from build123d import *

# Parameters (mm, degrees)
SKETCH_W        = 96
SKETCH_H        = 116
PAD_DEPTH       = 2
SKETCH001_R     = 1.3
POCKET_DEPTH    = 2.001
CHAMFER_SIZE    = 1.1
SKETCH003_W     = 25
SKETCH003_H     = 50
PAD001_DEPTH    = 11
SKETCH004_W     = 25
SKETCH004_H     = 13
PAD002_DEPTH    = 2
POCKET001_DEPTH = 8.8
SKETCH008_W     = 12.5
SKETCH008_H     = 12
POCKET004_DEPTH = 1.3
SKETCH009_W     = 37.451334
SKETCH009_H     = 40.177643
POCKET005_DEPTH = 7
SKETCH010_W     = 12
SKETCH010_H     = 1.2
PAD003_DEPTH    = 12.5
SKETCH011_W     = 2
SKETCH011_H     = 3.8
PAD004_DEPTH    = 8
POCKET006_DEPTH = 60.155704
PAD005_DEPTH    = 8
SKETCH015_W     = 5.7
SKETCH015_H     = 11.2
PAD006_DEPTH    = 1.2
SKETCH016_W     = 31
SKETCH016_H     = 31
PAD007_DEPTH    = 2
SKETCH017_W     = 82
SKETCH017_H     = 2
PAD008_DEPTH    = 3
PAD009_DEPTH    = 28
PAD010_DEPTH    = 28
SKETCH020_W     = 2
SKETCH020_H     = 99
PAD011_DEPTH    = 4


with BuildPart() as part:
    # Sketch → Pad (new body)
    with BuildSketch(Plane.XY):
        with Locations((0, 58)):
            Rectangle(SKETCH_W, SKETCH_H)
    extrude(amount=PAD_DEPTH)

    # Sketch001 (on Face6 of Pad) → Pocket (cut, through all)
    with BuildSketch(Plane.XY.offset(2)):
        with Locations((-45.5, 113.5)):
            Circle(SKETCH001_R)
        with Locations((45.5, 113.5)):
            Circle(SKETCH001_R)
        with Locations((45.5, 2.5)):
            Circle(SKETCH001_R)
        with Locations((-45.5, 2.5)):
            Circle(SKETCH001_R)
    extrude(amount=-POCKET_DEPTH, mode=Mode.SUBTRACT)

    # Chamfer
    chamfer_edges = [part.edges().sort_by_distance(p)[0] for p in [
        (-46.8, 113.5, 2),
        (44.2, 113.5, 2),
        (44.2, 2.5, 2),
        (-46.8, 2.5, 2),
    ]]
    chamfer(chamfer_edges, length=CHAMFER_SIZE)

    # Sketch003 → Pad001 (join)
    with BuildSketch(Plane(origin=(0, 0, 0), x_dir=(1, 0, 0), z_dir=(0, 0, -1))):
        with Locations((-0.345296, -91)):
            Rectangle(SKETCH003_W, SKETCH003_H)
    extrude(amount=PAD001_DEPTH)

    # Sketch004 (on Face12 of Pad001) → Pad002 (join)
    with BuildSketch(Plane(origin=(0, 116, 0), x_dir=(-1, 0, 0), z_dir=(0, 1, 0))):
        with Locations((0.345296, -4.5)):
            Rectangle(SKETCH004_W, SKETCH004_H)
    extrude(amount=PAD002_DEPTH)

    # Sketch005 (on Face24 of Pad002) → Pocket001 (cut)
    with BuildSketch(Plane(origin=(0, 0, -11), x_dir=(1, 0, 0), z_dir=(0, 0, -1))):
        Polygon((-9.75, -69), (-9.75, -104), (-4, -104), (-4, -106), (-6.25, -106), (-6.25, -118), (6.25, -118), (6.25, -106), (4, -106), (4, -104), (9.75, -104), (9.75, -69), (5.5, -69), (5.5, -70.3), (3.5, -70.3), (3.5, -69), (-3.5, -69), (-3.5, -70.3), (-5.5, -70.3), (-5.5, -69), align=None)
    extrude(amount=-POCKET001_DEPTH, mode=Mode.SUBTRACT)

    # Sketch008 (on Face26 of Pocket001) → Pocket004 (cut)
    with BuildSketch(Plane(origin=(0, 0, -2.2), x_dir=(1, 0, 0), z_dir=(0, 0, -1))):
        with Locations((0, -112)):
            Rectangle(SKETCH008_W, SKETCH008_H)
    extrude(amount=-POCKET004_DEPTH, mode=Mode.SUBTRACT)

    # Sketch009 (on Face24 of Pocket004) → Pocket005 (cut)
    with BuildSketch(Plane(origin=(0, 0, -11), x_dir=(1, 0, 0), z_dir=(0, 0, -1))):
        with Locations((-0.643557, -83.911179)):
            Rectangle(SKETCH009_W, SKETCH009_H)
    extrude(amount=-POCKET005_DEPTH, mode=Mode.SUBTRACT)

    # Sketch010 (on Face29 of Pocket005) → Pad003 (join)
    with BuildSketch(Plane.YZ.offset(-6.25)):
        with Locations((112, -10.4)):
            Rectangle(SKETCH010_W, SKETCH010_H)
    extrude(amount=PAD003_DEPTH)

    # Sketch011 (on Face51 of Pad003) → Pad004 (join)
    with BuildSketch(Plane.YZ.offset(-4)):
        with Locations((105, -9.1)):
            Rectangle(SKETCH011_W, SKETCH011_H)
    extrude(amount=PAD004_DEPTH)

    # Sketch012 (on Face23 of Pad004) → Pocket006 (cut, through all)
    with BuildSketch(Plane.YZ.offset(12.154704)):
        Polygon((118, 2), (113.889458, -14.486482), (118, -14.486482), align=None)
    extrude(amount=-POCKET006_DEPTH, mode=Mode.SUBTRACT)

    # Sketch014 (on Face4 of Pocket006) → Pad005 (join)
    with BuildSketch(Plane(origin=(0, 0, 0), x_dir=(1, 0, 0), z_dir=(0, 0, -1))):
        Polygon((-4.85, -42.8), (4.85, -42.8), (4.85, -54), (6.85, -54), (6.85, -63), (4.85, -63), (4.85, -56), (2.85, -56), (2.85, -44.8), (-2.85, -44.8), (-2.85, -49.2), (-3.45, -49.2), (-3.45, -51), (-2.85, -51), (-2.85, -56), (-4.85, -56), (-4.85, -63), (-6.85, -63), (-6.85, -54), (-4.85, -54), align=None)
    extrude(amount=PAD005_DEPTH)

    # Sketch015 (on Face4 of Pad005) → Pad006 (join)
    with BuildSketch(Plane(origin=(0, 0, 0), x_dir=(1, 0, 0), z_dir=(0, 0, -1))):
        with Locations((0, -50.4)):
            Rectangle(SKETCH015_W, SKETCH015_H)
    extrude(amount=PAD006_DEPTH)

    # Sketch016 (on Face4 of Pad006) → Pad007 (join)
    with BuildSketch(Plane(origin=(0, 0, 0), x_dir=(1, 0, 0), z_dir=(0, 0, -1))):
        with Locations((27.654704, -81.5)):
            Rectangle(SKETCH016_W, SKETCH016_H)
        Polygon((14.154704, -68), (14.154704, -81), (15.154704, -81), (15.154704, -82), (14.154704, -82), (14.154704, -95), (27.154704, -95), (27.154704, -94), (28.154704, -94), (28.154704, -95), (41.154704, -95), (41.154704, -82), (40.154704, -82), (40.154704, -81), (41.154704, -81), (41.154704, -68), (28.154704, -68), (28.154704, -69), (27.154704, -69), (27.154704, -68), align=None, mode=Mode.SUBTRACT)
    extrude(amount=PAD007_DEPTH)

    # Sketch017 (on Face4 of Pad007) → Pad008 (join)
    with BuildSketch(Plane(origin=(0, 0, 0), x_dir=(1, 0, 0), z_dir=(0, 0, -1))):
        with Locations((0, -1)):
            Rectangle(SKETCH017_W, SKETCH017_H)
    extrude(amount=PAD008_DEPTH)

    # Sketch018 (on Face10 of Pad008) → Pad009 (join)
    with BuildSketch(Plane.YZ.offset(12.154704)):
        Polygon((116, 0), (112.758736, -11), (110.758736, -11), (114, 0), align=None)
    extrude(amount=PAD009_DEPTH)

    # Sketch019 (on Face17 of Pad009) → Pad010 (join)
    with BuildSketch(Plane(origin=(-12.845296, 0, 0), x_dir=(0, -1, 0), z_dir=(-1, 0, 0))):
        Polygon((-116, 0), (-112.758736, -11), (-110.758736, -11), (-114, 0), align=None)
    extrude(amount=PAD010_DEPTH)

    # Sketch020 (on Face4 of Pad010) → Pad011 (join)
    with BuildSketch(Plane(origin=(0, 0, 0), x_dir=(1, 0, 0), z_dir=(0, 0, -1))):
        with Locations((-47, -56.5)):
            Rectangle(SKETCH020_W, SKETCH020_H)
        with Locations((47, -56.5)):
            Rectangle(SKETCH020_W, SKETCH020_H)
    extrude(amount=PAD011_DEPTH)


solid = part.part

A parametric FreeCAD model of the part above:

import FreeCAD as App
import Part
import Sketcher
Q = App.Units.Quantity


def edges_at(feature, points):
    """Names of the edges that pass closest to the given points."""
    edges = feature.Shape.Edges
    near = lambda p: min(range(len(edges)), key=lambda i: edges[i].distToShape(Part.Vertex(*p))[0])
    return sorted({f"Edge{near(p) + 1}" for p in points})

doc = App.newDocument("Part")
body = doc.addObject("PartDesign::Body", "Body")

# Sketch on XY plane
sketch1 = body.newObject("Sketcher::SketchObject", "Sketch")
sketch1.AttachmentSupport = (doc.getObject("XY_Plane"), [""])
sketch1.MapMode = "FlatFace"
sketch1.addGeometry(Part.LineSegment(App.Vector(-48, 116, 0), App.Vector(-48, 0, 0)), False)
sketch1.addGeometry(Part.LineSegment(App.Vector(-48, 0, 0), App.Vector(48, 0, 0)), False)
sketch1.addGeometry(Part.LineSegment(App.Vector(48, 0, 0), App.Vector(48, 116, 0)), False)
sketch1.addGeometry(Part.LineSegment(App.Vector(48, 116, 0), App.Vector(-48, 116, 0)), False)
sketch1.addConstraint(Sketcher.Constraint("Coincident", 0, 2, 1, 1))
sketch1.addConstraint(Sketcher.Constraint("Coincident", 1, 2, 2, 1))
sketch1.addConstraint(Sketcher.Constraint("Coincident", 2, 2, 3, 1))
sketch1.addConstraint(Sketcher.Constraint("Coincident", 3, 2, 0, 1))
sketch1.addConstraint(Sketcher.Constraint("Vertical", 0))
sketch1.addConstraint(Sketcher.Constraint("Horizontal", 1))
sketch1.addConstraint(Sketcher.Constraint("Vertical", 2))
sketch1.addConstraint(Sketcher.Constraint("Horizontal", 3))
sketch1.addConstraint(Sketcher.Constraint("Symmetric", 0, 2, 1, 2, -1, 1))
sketch1.addConstraint(Sketcher.Constraint("DistanceX", 1, 1, 1, 2, Q("96 mm")))
sketch1.addConstraint(Sketcher.Constraint("DistanceY", 0, 2, 0, 1, Q("116 mm")))
pad1 = body.newObject("PartDesign::Pad", "Pad")
pad1.Profile = sketch1
pad1.Length = 2

# Sketch on XY plane
sketch2 = body.newObject("Sketcher::SketchObject", "Sketch001")
sketch2.AttachmentSupport = (doc.getObject("XY_Plane"), [""])
sketch2.MapMode = "FlatFace"
sketch2.AttachmentOffset = App.Placement(App.Vector(0, 0, 2), App.Rotation())
sketch2.addGeometry(Part.Circle(App.Vector(-45.5, 113.5, 0), App.Vector(0, 0, 1), 1.3), False)
sketch2.addGeometry(Part.Circle(App.Vector(45.5, 113.5, 0), App.Vector(0, 0, 1), 1.3), False)
sketch2.addGeometry(Part.Circle(App.Vector(45.5, 2.5, 0), App.Vector(0, 0, 1), 1.3), False)
sketch2.addGeometry(Part.Circle(App.Vector(-45.5, 2.5, 0), App.Vector(0, 0, 1), 1.3), False)
sketch2.addConstraint(Sketcher.Constraint("Equal", 0, 1))
sketch2.addConstraint(Sketcher.Constraint("Equal", 1, 2))
sketch2.addConstraint(Sketcher.Constraint("Equal", 2, 3))
sketch2.addConstraint(Sketcher.Constraint("Symmetric", 0, 3, 1, 3, -2))
sketch2.addConstraint(Sketcher.Constraint("Symmetric", 2, 3, 3, 3, -2))
sketch2.addConstraint(Sketcher.Constraint("Vertical", 1, 3, 2, 3))
sketch2.addConstraint(Sketcher.Constraint("Diameter", 0, Q("2.6 mm")))
sketch2.addConstraint(Sketcher.Constraint("DistanceX", 0, 3, 1, 3, Q("91 mm")))
sketch2.addConstraint(Sketcher.Constraint("DistanceY", 2, 3, 1, 3, Q("111 mm")))
sketch2.addConstraint(Sketcher.Constraint("DistanceY", -1, 1, 0, 3, Q("113.5 mm")))
pocket1 = body.newObject("PartDesign::Pocket", "Pocket")
pocket1.Profile = sketch2
pocket1.Type = "ThroughAll"
doc.recompute()

chamfer = body.newObject("PartDesign::Chamfer", "Chamfer")
chamfer.Base = (pocket1, edges_at(pocket1, [
    (-46.8, 113.5, 2),
    (44.2, 113.5, 2),
    (44.2, 2.5, 2),
    (-46.8, 2.5, 2),
]))
chamfer.Size = 1.1

# Sketch on XY plane
sketch3 = body.newObject("Sketcher::SketchObject", "Sketch002")
sketch3.AttachmentSupport = (doc.getObject("XY_Plane"), [""])
sketch3.MapMode = "FlatFace"
sketch3.addGeometry(Part.LineSegment(App.Vector(-13, 66, 0), App.Vector(-13, 116, 0)), False)
sketch3.addGeometry(Part.LineSegment(App.Vector(-13, 116, 0), App.Vector(12, 116, 0)), False)
sketch3.addGeometry(Part.LineSegment(App.Vector(12, 116, 0), App.Vector(12, 66, 0)), False)
sketch3.addGeometry(Part.LineSegment(App.Vector(12, 66, 0), App.Vector(-13, 66, 0)), False)
sketch3.addConstraint(Sketcher.Constraint("Coincident", 0, 2, 1, 1))
sketch3.addConstraint(Sketcher.Constraint("Coincident", 1, 2, 2, 1))
sketch3.addConstraint(Sketcher.Constraint("Coincident", 2, 2, 3, 1))
sketch3.addConstraint(Sketcher.Constraint("Coincident", 3, 2, 0, 1))
sketch3.addConstraint(Sketcher.Constraint("Vertical", 0))
sketch3.addConstraint(Sketcher.Constraint("Horizontal", 1))
sketch3.addConstraint(Sketcher.Constraint("Vertical", 2))
sketch3.addConstraint(Sketcher.Constraint("Horizontal", 3))
sketch3.addConstraint(Sketcher.Constraint("DistanceX", 1, 1, 1, 2, Q("25 mm")))
sketch3.addConstraint(Sketcher.Constraint("DistanceY", 0, 1, 0, 2, Q("50 mm")))
sketch3.addConstraint(Sketcher.Constraint("DistanceY", -1, 1, 0, 2, Q("116 mm")))
sketch3.addConstraint(Sketcher.Constraint("DistanceX", 0, 2, -1, 1, Q("12.845296 mm")))
pad2 = body.newObject("PartDesign::Pad", "Pad001")
pad2.Profile = sketch3
pad2.Length = 11
pad2.Reversed = True

# Sketch on XZ plane
sketch4 = body.newObject("Sketcher::SketchObject", "Sketch003")
sketch4.AttachmentSupport = (doc.getObject("XZ_Plane"), [""])
sketch4.MapMode = "FlatFace"
sketch4.AttachmentOffset = App.Placement(App.Vector(0, 0, -116), App.Rotation())
sketch4.addGeometry(Part.LineSegment(App.Vector(12, 2, 0), App.Vector(12, -11, 0)), False)
sketch4.addGeometry(Part.LineSegment(App.Vector(12, -11, 0), App.Vector(-13, -11, 0)), False)
sketch4.addGeometry(Part.LineSegment(App.Vector(-13, -11, 0), App.Vector(-13, 2, 0)), False)
sketch4.addGeometry(Part.LineSegment(App.Vector(-13, 2, 0), App.Vector(12, 2, 0)), False)
sketch4.addConstraint(Sketcher.Constraint("Coincident", 0, 2, 1, 1))
sketch4.addConstraint(Sketcher.Constraint("Coincident", 1, 2, 2, 1))
sketch4.addConstraint(Sketcher.Constraint("Coincident", 2, 2, 3, 1))
sketch4.addConstraint(Sketcher.Constraint("Coincident", 3, 2, 0, 1))
sketch4.addConstraint(Sketcher.Constraint("Vertical", 0))
sketch4.addConstraint(Sketcher.Constraint("Horizontal", 1))
sketch4.addConstraint(Sketcher.Constraint("Vertical", 2))
sketch4.addConstraint(Sketcher.Constraint("Horizontal", 3))
sketch4.addConstraint(Sketcher.Constraint("DistanceX", 1, 2, 1, 1, Q("25 mm")))
sketch4.addConstraint(Sketcher.Constraint("DistanceY", 0, 2, 0, 1, Q("13 mm")))
sketch4.addConstraint(Sketcher.Constraint("DistanceY", 0, 2, -1, 1, Q("11 mm")))
sketch4.addConstraint(Sketcher.Constraint("DistanceX", -1, 1, 0, 2, Q("12.154704 mm")))
pad3 = body.newObject("PartDesign::Pad", "Pad002")
pad3.Profile = sketch4
pad3.Length = 2
pad3.Reversed = True

# Sketch on XY plane
sketch5 = body.newObject("Sketcher::SketchObject", "Sketch004")
sketch5.AttachmentSupport = (doc.getObject("XY_Plane"), [""])
sketch5.MapMode = "FlatFace"
sketch5.AttachmentOffset = App.Placement(App.Vector(0, 0, -11), App.Rotation())
sketch5.addGeometry(Part.LineSegment(App.Vector(-9.8, 69, 0), App.Vector(-9.8, 104, 0)), False)
sketch5.addGeometry(Part.LineSegment(App.Vector(-9.8, 104, 0), App.Vector(-4, 104, 0)), False)
sketch5.addGeometry(Part.LineSegment(App.Vector(-4, 104, 0), App.Vector(-4, 106, 0)), False)
sketch5.addGeometry(Part.LineSegment(App.Vector(-4, 106, 0), App.Vector(-6.2, 106, 0)), False)
sketch5.addGeometry(Part.LineSegment(App.Vector(-6.2, 106, 0), App.Vector(-6.2, 118, 0)), False)
sketch5.addGeometry(Part.LineSegment(App.Vector(-6.2, 118, 0), App.Vector(6.2, 118, 0)), False)
sketch5.addGeometry(Part.LineSegment(App.Vector(6.2, 118, 0), App.Vector(6.2, 106, 0)), False)
sketch5.addGeometry(Part.LineSegment(App.Vector(6.2, 106, 0), App.Vector(4, 106, 0)), False)
sketch5.addGeometry(Part.LineSegment(App.Vector(4, 106, 0), App.Vector(4, 104, 0)), False)
sketch5.addGeometry(Part.LineSegment(App.Vector(4, 104, 0), App.Vector(9.8, 104, 0)), False)
sketch5.addGeometry(Part.LineSegment(App.Vector(9.8, 104, 0), App.Vector(9.8, 69, 0)), False)
sketch5.addGeometry(Part.LineSegment(App.Vector(9.8, 69, 0), App.Vector(5.5, 69, 0)), False)
sketch5.addGeometry(Part.LineSegment(App.Vector(5.5, 69, 0), App.Vector(5.5, 70.3, 0)), False)
sketch5.addGeometry(Part.LineSegment(App.Vector(5.5, 70.3, 0), App.Vector(3.5, 70.3, 0)), False)
sketch5.addGeometry(Part.LineSegment(App.Vector(3.5, 70.3, 0), App.Vector(3.5, 69, 0)), False)
sketch5.addGeometry(Part.LineSegment(App.Vector(3.5, 69, 0), App.Vector(-3.5, 69, 0)), False)
sketch5.addGeometry(Part.LineSegment(App.Vector(-3.5, 69, 0), App.Vector(-3.5, 70.3, 0)), False)
sketch5.addGeometry(Part.LineSegment(App.Vector(-3.5, 70.3, 0), App.Vector(-5.5, 70.3, 0)), False)
sketch5.addGeometry(Part.LineSegment(App.Vector(-5.5, 70.3, 0), App.Vector(-5.5, 69, 0)), False)
sketch5.addGeometry(Part.LineSegment(App.Vector(-5.5, 69, 0), App.Vector(-9.8, 69, 0)), False)
sketch5.addConstraint(Sketcher.Constraint("Coincident", 0, 2, 1, 1))
sketch5.addConstraint(Sketcher.Constraint("Coincident", 1, 2, 2, 1))
sketch5.addConstraint(Sketcher.Constraint("Coincident", 2, 2, 3, 1))
sketch5.addConstraint(Sketcher.Constraint("Coincident", 3, 2, 4, 1))
sketch5.addConstraint(Sketcher.Constraint("Coincident", 4, 2, 5, 1))
sketch5.addConstraint(Sketcher.Constraint("Coincident", 5, 2, 6, 1))
sketch5.addConstraint(Sketcher.Constraint("Coincident", 6, 2, 7, 1))
sketch5.addConstraint(Sketcher.Constraint("Coincident", 7, 2, 8, 1))
sketch5.addConstraint(Sketcher.Constraint("Coincident", 8, 2, 9, 1))
sketch5.addConstraint(Sketcher.Constraint("Coincident", 9, 2, 10, 1))
sketch5.addConstraint(Sketcher.Constraint("Coincident", 10, 2, 11, 1))
sketch5.addConstraint(Sketcher.Constraint("Coincident", 11, 2, 12, 1))
sketch5.addConstraint(Sketcher.Constraint("Coincident", 12, 2, 13, 1))
sketch5.addConstraint(Sketcher.Constraint("Coincident", 13, 2, 14, 1))
sketch5.addConstraint(Sketcher.Constraint("Coincident", 14, 2, 15, 1))
sketch5.addConstraint(Sketcher.Constraint("Coincident", 15, 2, 16, 1))
sketch5.addConstraint(Sketcher.Constraint("Coincident", 16, 2, 17, 1))
sketch5.addConstraint(Sketcher.Constraint("Coincident", 17, 2, 18, 1))
sketch5.addConstraint(Sketcher.Constraint("Coincident", 18, 2, 19, 1))
sketch5.addConstraint(Sketcher.Constraint("Coincident", 19, 2, 0, 1))
sketch5.addConstraint(Sketcher.Constraint("Vertical", 0))
sketch5.addConstraint(Sketcher.Constraint("Horizontal", 1))
sketch5.addConstraint(Sketcher.Constraint("Vertical", 2))
sketch5.addConstraint(Sketcher.Constraint("Horizontal", 3))
sketch5.addConstraint(Sketcher.Constraint("Vertical", 4))
sketch5.addConstraint(Sketcher.Constraint("Horizontal", 5))
sketch5.addConstraint(Sketcher.Constraint("Vertical", 6))
sketch5.addConstraint(Sketcher.Constraint("Horizontal", 7))
sketch5.addConstraint(Sketcher.Constraint("Vertical", 8))
sketch5.addConstraint(Sketcher.Constraint("Horizontal", 9))
sketch5.addConstraint(Sketcher.Constraint("Vertical", 10))
sketch5.addConstraint(Sketcher.Constraint("Horizontal", 11))
sketch5.addConstraint(Sketcher.Constraint("Vertical", 12))
sketch5.addConstraint(Sketcher.Constraint("Horizontal", 13))
sketch5.addConstraint(Sketcher.Constraint("Vertical", 14))
sketch5.addConstraint(Sketcher.Constraint("Horizontal", 15))
sketch5.addConstraint(Sketcher.Constraint("Vertical", 16))
sketch5.addConstraint(Sketcher.Constraint("Horizontal", 17))
sketch5.addConstraint(Sketcher.Constraint("Vertical", 18))
sketch5.addConstraint(Sketcher.Constraint("Horizontal", 19))
sketch5.addConstraint(Sketcher.Constraint("Symmetric", 3, 2, 6, 2, -2))
sketch5.addConstraint(Sketcher.Constraint("Symmetric", 1, 2, 8, 2, -2))
sketch5.addConstraint(Sketcher.Constraint("Symmetric", 13, 2, 16, 2, -2))
sketch5.addConstraint(Sketcher.Constraint("Symmetric", 11, 2, 18, 2, -2))
sketch5.addConstraint(Sketcher.Constraint("Horizontal", 11, 2, 14, 2))
sketch5.addConstraint(Sketcher.Constraint("Equal", 1, 9))
sketch5.addConstraint(Sketcher.Constraint("Equal", 17, 2))
sketch5.addConstraint(Sketcher.Constraint("DistanceX", 13, 2, 13, 1, Q("2 mm")))
sketch5.addConstraint(Sketcher.Constraint("DistanceX", 15, 2, 15, 1, Q("7 mm")))
sketch5.addConstraint(Sketcher.Constraint("DistanceY", 0, 1, 0, 2, Q("35 mm")))
sketch5.addConstraint(Sketcher.Constraint("DistanceY", 4, 1, 4, 2, Q("12 mm")))
sketch5.addConstraint(Sketcher.Constraint("DistanceX", 5, 1, 5, 2, Q("12.5 mm")))
sketch5.addConstraint(Sketcher.Constraint("DistanceY", 12, 1, 12, 2, Q("1.3 mm")))
sketch5.addConstraint(Sketcher.Constraint("DistanceY", -1, 1, 0, 2, Q("104 mm")))
sketch5.addConstraint(Sketcher.Constraint("DistanceX", 1, 2, -1, 1, Q("4 mm")))
sketch5.addConstraint(Sketcher.Constraint("DistanceX", 0, 2, 5, 2, Q("16 mm")))
pocket2 = body.newObject("PartDesign::Pocket", "Pocket001")
pocket2.Profile = sketch5
pocket2.Length = 8.8
pocket2.Reversed = True

# Sketch on XY plane
sketch6 = body.newObject("Sketcher::SketchObject", "Sketch005")
sketch6.AttachmentSupport = (doc.getObject("XY_Plane"), [""])
sketch6.MapMode = "FlatFace"
sketch6.AttachmentOffset = App.Placement(App.Vector(0, 0, -2.2), App.Rotation())
sketch6.addGeometry(Part.LineSegment(App.Vector(-6, 106, 0), App.Vector(-6, 118, 0)), False)
sketch6.addGeometry(Part.LineSegment(App.Vector(-6, 118, 0), App.Vector(6, 118, 0)), False)
sketch6.addGeometry(Part.LineSegment(App.Vector(6, 118, 0), App.Vector(6, 106, 0)), False)
sketch6.addGeometry(Part.LineSegment(App.Vector(6, 106, 0), App.Vector(-6, 106, 0)), False)
sketch6.addConstraint(Sketcher.Constraint("Coincident", 0, 2, 1, 1))
sketch6.addConstraint(Sketcher.Constraint("Coincident", 1, 2, 2, 1))
sketch6.addConstraint(Sketcher.Constraint("Coincident", 2, 2, 3, 1))
sketch6.addConstraint(Sketcher.Constraint("Coincident", 3, 2, 0, 1))
sketch6.addConstraint(Sketcher.Constraint("Vertical", 0))
sketch6.addConstraint(Sketcher.Constraint("Horizontal", 1))
sketch6.addConstraint(Sketcher.Constraint("Vertical", 2))
sketch6.addConstraint(Sketcher.Constraint("Horizontal", 3))
sketch6.addConstraint(Sketcher.Constraint("DistanceY", 0, 1, 0, 2, Q("12 mm")))
sketch6.addConstraint(Sketcher.Constraint("DistanceX", 1, 1, 1, 2, Q("12.5 mm")))
sketch6.addConstraint(Sketcher.Constraint("DistanceY", -1, 1, 0, 2, Q("118 mm")))
sketch6.addConstraint(Sketcher.Constraint("DistanceX", 0, 2, -1, 1, Q("6.25 mm")))
pocket3 = body.newObject("PartDesign::Pocket", "Pocket002")
pocket3.Profile = sketch6
pocket3.Length = 1.3
pocket3.Reversed = True

# Sketch on XY plane
sketch7 = body.newObject("Sketcher::SketchObject", "Sketch006")
sketch7.AttachmentSupport = (doc.getObject("XY_Plane"), [""])
sketch7.MapMode = "FlatFace"
sketch7.AttachmentOffset = App.Placement(App.Vector(0, 0, -11), App.Rotation())
sketch7.addGeometry(Part.LineSegment(App.Vector(-19, 64, 0), App.Vector(-19, 104, 0)), False)
sketch7.addGeometry(Part.LineSegment(App.Vector(-19, 104, 0), App.Vector(18, 104, 0)), False)
sketch7.addGeometry(Part.LineSegment(App.Vector(18, 104, 0), App.Vector(18, 64, 0)), False)
sketch7.addGeometry(Part.LineSegment(App.Vector(18, 64, 0), App.Vector(-19, 64, 0)), False)
sketch7.addConstraint(Sketcher.Constraint("Coincident", 0, 2, 1, 1))
sketch7.addConstraint(Sketcher.Constraint("Coincident", 1, 2, 2, 1))
sketch7.addConstraint(Sketcher.Constraint("Coincident", 2, 2, 3, 1))
sketch7.addConstraint(Sketcher.Constraint("Coincident", 3, 2, 0, 1))
sketch7.addConstraint(Sketcher.Constraint("Vertical", 0))
sketch7.addConstraint(Sketcher.Constraint("Horizontal", 1))
sketch7.addConstraint(Sketcher.Constraint("Vertical", 2))
sketch7.addConstraint(Sketcher.Constraint("Horizontal", 3))
sketch7.addConstraint(Sketcher.Constraint("DistanceY", -1, 1, 0, 2, Q("104 mm")))
sketch7.addConstraint(Sketcher.Constraint("DistanceX", 1, 1, 1, 2, Q("37.451334 mm")))
sketch7.addConstraint(Sketcher.Constraint("DistanceY", 0, 1, 0, 2, Q("40.177643 mm")))
sketch7.addConstraint(Sketcher.Constraint("DistanceX", -1, 1, 1, 2, Q("18.08211 mm")))
pocket4 = body.newObject("PartDesign::Pocket", "Pocket003")
pocket4.Profile = sketch7
pocket4.Length = 7
pocket4.Reversed = True

# Sketch on YZ plane
sketch8 = body.newObject("Sketcher::SketchObject", "Sketch007")
sketch8.AttachmentSupport = (doc.getObject("YZ_Plane"), [""])
sketch8.MapMode = "FlatFace"
sketch8.AttachmentOffset = App.Placement(App.Vector(0, 0, -6.25), App.Rotation())
sketch8.addGeometry(Part.LineSegment(App.Vector(106, -9.8, 0), App.Vector(106, -11, 0)), False)
sketch8.addGeometry(Part.LineSegment(App.Vector(106, -11, 0), App.Vector(118, -11, 0)), False)
sketch8.addGeometry(Part.LineSegment(App.Vector(118, -11, 0), App.Vector(118, -9.8, 0)), False)
sketch8.addGeometry(Part.LineSegment(App.Vector(118, -9.8, 0), App.Vector(106, -9.8, 0)), False)
sketch8.addConstraint(Sketcher.Constraint("Coincident", 0, 2, 1, 1))
sketch8.addConstraint(Sketcher.Constraint("Coincident", 1, 2, 2, 1))
sketch8.addConstraint(Sketcher.Constraint("Coincident", 2, 2, 3, 1))
sketch8.addConstraint(Sketcher.Constraint("Coincident", 3, 2, 0, 1))
sketch8.addConstraint(Sketcher.Constraint("Vertical", 0))
sketch8.addConstraint(Sketcher.Constraint("Horizontal", 1))
sketch8.addConstraint(Sketcher.Constraint("Vertical", 2))
sketch8.addConstraint(Sketcher.Constraint("Horizontal", 3))
sketch8.addConstraint(Sketcher.Constraint("DistanceX", 1, 1, 1, 2, Q("12 mm")))
sketch8.addConstraint(Sketcher.Constraint("DistanceY", 0, 2, 0, 1, Q("1.2 mm")))
sketch8.addConstraint(Sketcher.Constraint("DistanceX", -1, 1, 0, 2, Q("106 mm")))
sketch8.addConstraint(Sketcher.Constraint("DistanceY", 0, 2, -1, 1, Q("11 mm")))
pad4 = body.newObject("PartDesign::Pad", "Pad003")
pad4.Profile = sketch8
pad4.Length = 12.5

# Sketch on YZ plane
sketch9 = body.newObject("Sketcher::SketchObject", "Sketch008")
sketch9.AttachmentSupport = (doc.getObject("YZ_Plane"), [""])
sketch9.MapMode = "FlatFace"
sketch9.AttachmentOffset = App.Placement(App.Vector(0, 0, -4), App.Rotation())
sketch9.addGeometry(Part.LineSegment(App.Vector(104, -7.2, 0), App.Vector(104, -11, 0)), False)
sketch9.addGeometry(Part.LineSegment(App.Vector(104, -11, 0), App.Vector(106, -11, 0)), False)
sketch9.addGeometry(Part.LineSegment(App.Vector(106, -11, 0), App.Vector(106, -7.2, 0)), False)
sketch9.addGeometry(Part.LineSegment(App.Vector(106, -7.2, 0), App.Vector(104, -7.2, 0)), False)
sketch9.addConstraint(Sketcher.Constraint("Coincident", 0, 2, 1, 1))
sketch9.addConstraint(Sketcher.Constraint("Coincident", 1, 2, 2, 1))
sketch9.addConstraint(Sketcher.Constraint("Coincident", 2, 2, 3, 1))
sketch9.addConstraint(Sketcher.Constraint("Coincident", 3, 2, 0, 1))
sketch9.addConstraint(Sketcher.Constraint("Vertical", 0))
sketch9.addConstraint(Sketcher.Constraint("Horizontal", 1))
sketch9.addConstraint(Sketcher.Constraint("Vertical", 2))
sketch9.addConstraint(Sketcher.Constraint("Horizontal", 3))
sketch9.addConstraint(Sketcher.Constraint("DistanceX", 1, 1, 1, 2, Q("2 mm")))
sketch9.addConstraint(Sketcher.Constraint("DistanceY", 0, 2, 0, 1, Q("3.8 mm")))
sketch9.addConstraint(Sketcher.Constraint("DistanceX", -1, 1, 0, 2, Q("104 mm")))
sketch9.addConstraint(Sketcher.Constraint("DistanceY", 0, 2, -1, 1, Q("11 mm")))
pad5 = body.newObject("PartDesign::Pad", "Pad004")
pad5.Profile = sketch9
pad5.Length = 8

# Sketch on YZ plane
sketch10 = body.newObject("Sketcher::SketchObject", "Sketch009")
sketch10.AttachmentSupport = (doc.getObject("YZ_Plane"), [""])
sketch10.MapMode = "FlatFace"
sketch10.AttachmentOffset = App.Placement(App.Vector(0, 0, 12.154704), App.Rotation())
sketch10.addGeometry(Part.LineSegment(App.Vector(118, 2, 0), App.Vector(113.9, -14.5, 0)), False)
sketch10.addGeometry(Part.LineSegment(App.Vector(113.9, -14.5, 0), App.Vector(118, -14.5, 0)), False)
sketch10.addGeometry(Part.LineSegment(App.Vector(118, -14.5, 0), App.Vector(118, 2, 0)), False)
sketch10.addConstraint(Sketcher.Constraint("Coincident", 0, 2, 1, 1))
sketch10.addConstraint(Sketcher.Constraint("Coincident", 1, 2, 2, 1))
sketch10.addConstraint(Sketcher.Constraint("Coincident", 2, 2, 0, 1))
sketch10.addConstraint(Sketcher.Constraint("Horizontal", 1))
sketch10.addConstraint(Sketcher.Constraint("Vertical", 2))
sketch10.addConstraint(Sketcher.Constraint("Angle", 0, Q("-104.000001 deg")))
sketch10.addConstraint(Sketcher.Constraint("DistanceX", -1, 1, 1, 2, Q("118 mm")))
sketch10.addConstraint(Sketcher.Constraint("DistanceY", -1, 1, 2, 2, Q("2 mm")))
sketch10.addConstraint(Sketcher.Constraint("DistanceX", 1, 1, 1, 2, Q("4.110542 mm")))
pocket5 = body.newObject("PartDesign::Pocket", "Pocket004")
pocket5.Profile = sketch10
pocket5.Type = "ThroughAll"

# Sketch on XY plane
sketch11 = body.newObject("Sketcher::SketchObject", "Sketch010")
sketch11.AttachmentSupport = (doc.getObject("XY_Plane"), [""])
sketch11.MapMode = "FlatFace"
sketch11.addGeometry(Part.LineSegment(App.Vector(4.8, 42.8, 0), App.Vector(-4.8, 42.8, 0)), False)
sketch11.addGeometry(Part.LineSegment(App.Vector(-4.8, 42.8, 0), App.Vector(-4.8, 54, 0)), False)
sketch11.addGeometry(Part.LineSegment(App.Vector(-4.8, 54, 0), App.Vector(-6.8, 54, 0)), False)
sketch11.addGeometry(Part.LineSegment(App.Vector(-6.8, 54, 0), App.Vector(-6.8, 63, 0)), False)
sketch11.addGeometry(Part.LineSegment(App.Vector(-6.8, 63, 0), App.Vector(-4.8, 63, 0)), False)
sketch11.addGeometry(Part.LineSegment(App.Vector(-4.8, 63, 0), App.Vector(-4.8, 56, 0)), False)
sketch11.addGeometry(Part.LineSegment(App.Vector(-4.8, 56, 0), App.Vector(-2.9, 56, 0)), False)
sketch11.addGeometry(Part.LineSegment(App.Vector(-2.9, 56, 0), App.Vector(-2.9, 51, 0)), False)
sketch11.addGeometry(Part.LineSegment(App.Vector(-2.9, 51, 0), App.Vector(-3.5, 51, 0)), False)
sketch11.addGeometry(Part.LineSegment(App.Vector(-3.5, 51, 0), App.Vector(-3.5, 49.2, 0)), False)
sketch11.addGeometry(Part.LineSegment(App.Vector(-3.5, 49.2, 0), App.Vector(-2.9, 49.2, 0)), False)
sketch11.addGeometry(Part.LineSegment(App.Vector(-2.9, 49.2, 0), App.Vector(-2.9, 44.8, 0)), False)
sketch11.addGeometry(Part.LineSegment(App.Vector(-2.9, 44.8, 0), App.Vector(2.9, 44.8, 0)), False)
sketch11.addGeometry(Part.LineSegment(App.Vector(2.9, 44.8, 0), App.Vector(2.9, 56, 0)), False)
sketch11.addGeometry(Part.LineSegment(App.Vector(2.9, 56, 0), App.Vector(4.8, 56, 0)), False)
sketch11.addGeometry(Part.LineSegment(App.Vector(4.8, 56, 0), App.Vector(4.8, 63, 0)), False)
sketch11.addGeometry(Part.LineSegment(App.Vector(4.8, 63, 0), App.Vector(6.8, 63, 0)), False)
sketch11.addGeometry(Part.LineSegment(App.Vector(6.8, 63, 0), App.Vector(6.8, 54, 0)), False)
sketch11.addGeometry(Part.LineSegment(App.Vector(6.8, 54, 0), App.Vector(4.8, 54, 0)), False)
sketch11.addGeometry(Part.LineSegment(App.Vector(4.8, 54, 0), App.Vector(4.8, 42.8, 0)), False)
sketch11.addConstraint(Sketcher.Constraint("Coincident", 0, 2, 1, 1))
sketch11.addConstraint(Sketcher.Constraint("Coincident", 1, 2, 2, 1))
sketch11.addConstraint(Sketcher.Constraint("Coincident", 2, 2, 3, 1))
sketch11.addConstraint(Sketcher.Constraint("Coincident", 3, 2, 4, 1))
sketch11.addConstraint(Sketcher.Constraint("Coincident", 4, 2, 5, 1))
sketch11.addConstraint(Sketcher.Constraint("Coincident", 5, 2, 6, 1))
sketch11.addConstraint(Sketcher.Constraint("Coincident", 6, 2, 7, 1))
sketch11.addConstraint(Sketcher.Constraint("Coincident", 7, 2, 8, 1))
sketch11.addConstraint(Sketcher.Constraint("Coincident", 8, 2, 9, 1))
sketch11.addConstraint(Sketcher.Constraint("Coincident", 9, 2, 10, 1))
sketch11.addConstraint(Sketcher.Constraint("Coincident", 10, 2, 11, 1))
sketch11.addConstraint(Sketcher.Constraint("Coincident", 11, 2, 12, 1))
sketch11.addConstraint(Sketcher.Constraint("Coincident", 12, 2, 13, 1))
sketch11.addConstraint(Sketcher.Constraint("Coincident", 13, 2, 14, 1))
sketch11.addConstraint(Sketcher.Constraint("Coincident", 14, 2, 15, 1))
sketch11.addConstraint(Sketcher.Constraint("Coincident", 15, 2, 16, 1))
sketch11.addConstraint(Sketcher.Constraint("Coincident", 16, 2, 17, 1))
sketch11.addConstraint(Sketcher.Constraint("Coincident", 17, 2, 18, 1))
sketch11.addConstraint(Sketcher.Constraint("Coincident", 18, 2, 19, 1))
sketch11.addConstraint(Sketcher.Constraint("Coincident", 19, 2, 0, 1))
sketch11.addConstraint(Sketcher.Constraint("Horizontal", 0))
sketch11.addConstraint(Sketcher.Constraint("Vertical", 1))
sketch11.addConstraint(Sketcher.Constraint("Horizontal", 2))
sketch11.addConstraint(Sketcher.Constraint("Vertical", 3))
sketch11.addConstraint(Sketcher.Constraint("Horizontal", 4))
sketch11.addConstraint(Sketcher.Constraint("Vertical", 5))
sketch11.addConstraint(Sketcher.Constraint("Horizontal", 6))
sketch11.addConstraint(Sketcher.Constraint("Vertical", 7))
sketch11.addConstraint(Sketcher.Constraint("Horizontal", 8))
sketch11.addConstraint(Sketcher.Constraint("Vertical", 9))
sketch11.addConstraint(Sketcher.Constraint("Horizontal", 10))
sketch11.addConstraint(Sketcher.Constraint("Vertical", 11))
sketch11.addConstraint(Sketcher.Constraint("Horizontal", 12))
sketch11.addConstraint(Sketcher.Constraint("Vertical", 13))
sketch11.addConstraint(Sketcher.Constraint("Horizontal", 14))
sketch11.addConstraint(Sketcher.Constraint("Vertical", 15))
sketch11.addConstraint(Sketcher.Constraint("Horizontal", 16))
sketch11.addConstraint(Sketcher.Constraint("Vertical", 17))
sketch11.addConstraint(Sketcher.Constraint("Horizontal", 18))
sketch11.addConstraint(Sketcher.Constraint("Vertical", 19))
sketch11.addConstraint(Sketcher.Constraint("Symmetric", 6, 2, 13, 2, -2))
sketch11.addConstraint(Sketcher.Constraint("Symmetric", 4, 2, 15, 2, -2))
sketch11.addConstraint(Sketcher.Constraint("Symmetric", 2, 2, 17, 2, -2))
sketch11.addConstraint(Sketcher.Constraint("Vertical", 1, 2, 4, 2))
sketch11.addConstraint(Sketcher.Constraint("Vertical", 7, 2, 10, 2))
sketch11.addConstraint(Sketcher.Constraint("Vertical", 15, 2, 18, 2))
sketch11.addConstraint(Sketcher.Constraint("Equal", 4, 6))
sketch11.addConstraint(Sketcher.Constraint("Equal", 1, 13))
sketch11.addConstraint(Sketcher.Constraint("DistanceX", 2, 2, 2, 1, Q("2 mm")))
sketch11.addConstraint(Sketcher.Constraint("DistanceY", 3, 1, 3, 2, Q("9 mm")))
sketch11.addConstraint(Sketcher.Constraint("DistanceY", 5, 2, 5, 1, Q("7 mm")))
sketch11.addConstraint(Sketcher.Constraint("DistanceY", 7, 2, 7, 1, Q("5 mm")))
sketch11.addConstraint(Sketcher.Constraint("DistanceX", 0, 2, 0, 1, Q("9.7 mm")))
sketch11.addConstraint(Sketcher.Constraint("DistanceX", 8, 2, 8, 1, Q("0.6 mm")))
sketch11.addConstraint(Sketcher.Constraint("DistanceY", 1, 1, 1, 2, Q("11.2 mm")))
sketch11.addConstraint(Sketcher.Constraint("DistanceY", 9, 2, 9, 1, Q("1.8 mm")))
sketch11.addConstraint(Sketcher.Constraint("DistanceY", -1, 1, 1, 2, Q("54 mm")))
pad6 = body.newObject("PartDesign::Pad", "Pad005")
pad6.Profile = sketch11
pad6.Length = 8
pad6.Reversed = True

# Sketch on XY plane
sketch12 = body.newObject("Sketcher::SketchObject", "Sketch011")
sketch12.AttachmentSupport = (doc.getObject("XY_Plane"), [""])
sketch12.MapMode = "FlatFace"
sketch12.addGeometry(Part.LineSegment(App.Vector(-3, 45, 0), App.Vector(-3, 56, 0)), False)
sketch12.addGeometry(Part.LineSegment(App.Vector(-3, 56, 0), App.Vector(3, 56, 0)), False)
sketch12.addGeometry(Part.LineSegment(App.Vector(3, 56, 0), App.Vector(3, 45, 0)), False)
sketch12.addGeometry(Part.LineSegment(App.Vector(3, 45, 0), App.Vector(-3, 45, 0)), False)
sketch12.addConstraint(Sketcher.Constraint("Coincident", 0, 2, 1, 1))
sketch12.addConstraint(Sketcher.Constraint("Coincident", 1, 2, 2, 1))
sketch12.addConstraint(Sketcher.Constraint("Coincident", 2, 2, 3, 1))
sketch12.addConstraint(Sketcher.Constraint("Coincident", 3, 2, 0, 1))
sketch12.addConstraint(Sketcher.Constraint("Vertical", 0))
sketch12.addConstraint(Sketcher.Constraint("Horizontal", 1))
sketch12.addConstraint(Sketcher.Constraint("Vertical", 2))
sketch12.addConstraint(Sketcher.Constraint("Horizontal", 3))
sketch12.addConstraint(Sketcher.Constraint("DistanceX", 1, 1, 1, 2, Q("5.7 mm")))
sketch12.addConstraint(Sketcher.Constraint("DistanceY", 0, 1, 0, 2, Q("11.2 mm")))
sketch12.addConstraint(Sketcher.Constraint("DistanceY", -1, 1, 0, 2, Q("56 mm")))
sketch12.addConstraint(Sketcher.Constraint("DistanceX", 0, 2, -1, 1, Q("2.85 mm")))
pad7 = body.newObject("PartDesign::Pad", "Pad006")
pad7.Profile = sketch12
pad7.Length = 1.2
pad7.Reversed = True

# Sketch on XY plane
sketch13 = body.newObject("Sketcher::SketchObject", "Sketch012")
sketch13.AttachmentSupport = (doc.getObject("XY_Plane"), [""])
sketch13.MapMode = "FlatFace"
sketch13.addGeometry(Part.LineSegment(App.Vector(12.2, 66, 0), App.Vector(12.2, 97, 0)), False)
sketch13.addGeometry(Part.LineSegment(App.Vector(12.2, 97, 0), App.Vector(43.2, 97, 0)), False)
sketch13.addGeometry(Part.LineSegment(App.Vector(43.2, 97, 0), App.Vector(43.2, 66, 0)), False)
sketch13.addGeometry(Part.LineSegment(App.Vector(43.2, 66, 0), App.Vector(12.2, 66, 0)), False)
sketch13.addGeometry(Part.LineSegment(App.Vector(14.2, 81, 0), App.Vector(14.2, 68, 0)), False)
sketch13.addGeometry(Part.LineSegment(App.Vector(14.2, 68, 0), App.Vector(27.2, 68, 0)), False)
sketch13.addGeometry(Part.LineSegment(App.Vector(27.2, 68, 0), App.Vector(27.2, 69, 0)), False)
sketch13.addGeometry(Part.LineSegment(App.Vector(27.2, 69, 0), App.Vector(28.2, 69, 0)), False)
sketch13.addGeometry(Part.LineSegment(App.Vector(28.2, 69, 0), App.Vector(28.2, 68, 0)), False)
sketch13.addGeometry(Part.LineSegment(App.Vector(28.2, 68, 0), App.Vector(41.2, 68, 0)), False)
sketch13.addGeometry(Part.LineSegment(App.Vector(41.2, 68, 0), App.Vector(41.2, 81, 0)), False)
sketch13.addGeometry(Part.LineSegment(App.Vector(41.2, 81, 0), App.Vector(40.2, 81, 0)), False)
sketch13.addGeometry(Part.LineSegment(App.Vector(40.2, 81, 0), App.Vector(40.2, 82, 0)), False)
sketch13.addGeometry(Part.LineSegment(App.Vector(40.2, 82, 0), App.Vector(41.2, 82, 0)), False)
sketch13.addGeometry(Part.LineSegment(App.Vector(41.2, 82, 0), App.Vector(41.2, 95, 0)), False)
sketch13.addGeometry(Part.LineSegment(App.Vector(41.2, 95, 0), App.Vector(28.2, 95, 0)), False)
sketch13.addGeometry(Part.LineSegment(App.Vector(28.2, 95, 0), App.Vector(28.2, 94, 0)), False)
sketch13.addGeometry(Part.LineSegment(App.Vector(28.2, 94, 0), App.Vector(27.2, 94, 0)), False)
sketch13.addGeometry(Part.LineSegment(App.Vector(27.2, 94, 0), App.Vector(27.2, 95, 0)), False)
sketch13.addGeometry(Part.LineSegment(App.Vector(27.2, 95, 0), App.Vector(14.2, 95, 0)), False)
sketch13.addGeometry(Part.LineSegment(App.Vector(14.2, 95, 0), App.Vector(14.2, 82, 0)), False)
sketch13.addGeometry(Part.LineSegment(App.Vector(14.2, 82, 0), App.Vector(15.2, 82, 0)), False)
sketch13.addGeometry(Part.LineSegment(App.Vector(15.2, 82, 0), App.Vector(15.2, 81, 0)), False)
sketch13.addGeometry(Part.LineSegment(App.Vector(15.2, 81, 0), App.Vector(14.2, 81, 0)), False)
sketch13.addConstraint(Sketcher.Constraint("Coincident", 0, 2, 1, 1))
sketch13.addConstraint(Sketcher.Constraint("Coincident", 1, 2, 2, 1))
sketch13.addConstraint(Sketcher.Constraint("Coincident", 2, 2, 3, 1))
sketch13.addConstraint(Sketcher.Constraint("Coincident", 3, 2, 0, 1))
sketch13.addConstraint(Sketcher.Constraint("Coincident", 4, 2, 5, 1))
sketch13.addConstraint(Sketcher.Constraint("Coincident", 5, 2, 6, 1))
sketch13.addConstraint(Sketcher.Constraint("Coincident", 6, 2, 7, 1))
sketch13.addConstraint(Sketcher.Constraint("Coincident", 7, 2, 8, 1))
sketch13.addConstraint(Sketcher.Constraint("Coincident", 8, 2, 9, 1))
sketch13.addConstraint(Sketcher.Constraint("Coincident", 9, 2, 10, 1))
sketch13.addConstraint(Sketcher.Constraint("Coincident", 10, 2, 11, 1))
sketch13.addConstraint(Sketcher.Constraint("Coincident", 11, 2, 12, 1))
sketch13.addConstraint(Sketcher.Constraint("Coincident", 12, 2, 13, 1))
sketch13.addConstraint(Sketcher.Constraint("Coincident", 13, 2, 14, 1))
sketch13.addConstraint(Sketcher.Constraint("Coincident", 14, 2, 15, 1))
sketch13.addConstraint(Sketcher.Constraint("Coincident", 15, 2, 16, 1))
sketch13.addConstraint(Sketcher.Constraint("Coincident", 16, 2, 17, 1))
sketch13.addConstraint(Sketcher.Constraint("Coincident", 17, 2, 18, 1))
sketch13.addConstraint(Sketcher.Constraint("Coincident", 18, 2, 19, 1))
sketch13.addConstraint(Sketcher.Constraint("Coincident", 19, 2, 20, 1))
sketch13.addConstraint(Sketcher.Constraint("Coincident", 20, 2, 21, 1))
sketch13.addConstraint(Sketcher.Constraint("Coincident", 21, 2, 22, 1))
sketch13.addConstraint(Sketcher.Constraint("Coincident", 22, 2, 23, 1))
sketch13.addConstraint(Sketcher.Constraint("Coincident", 23, 2, 4, 1))
sketch13.addConstraint(Sketcher.Constraint("Vertical", 0))
sketch13.addConstraint(Sketcher.Constraint("Horizontal", 1))
sketch13.addConstraint(Sketcher.Constraint("Vertical", 2))
sketch13.addConstraint(Sketcher.Constraint("Horizontal", 3))
sketch13.addConstraint(Sketcher.Constraint("Vertical", 4))
sketch13.addConstraint(Sketcher.Constraint("Horizontal", 5))
sketch13.addConstraint(Sketcher.Constraint("Vertical", 6))
sketch13.addConstraint(Sketcher.Constraint("Horizontal", 7))
sketch13.addConstraint(Sketcher.Constraint("Vertical", 8))
sketch13.addConstraint(Sketcher.Constraint("Horizontal", 9))
sketch13.addConstraint(Sketcher.Constraint("Vertical", 10))
sketch13.addConstraint(Sketcher.Constraint("Horizontal", 11))
sketch13.addConstraint(Sketcher.Constraint("Vertical", 12))
sketch13.addConstraint(Sketcher.Constraint("Horizontal", 13))
sketch13.addConstraint(Sketcher.Constraint("Vertical", 14))
sketch13.addConstraint(Sketcher.Constraint("Horizontal", 15))
sketch13.addConstraint(Sketcher.Constraint("Vertical", 16))
sketch13.addConstraint(Sketcher.Constraint("Horizontal", 17))
sketch13.addConstraint(Sketcher.Constraint("Vertical", 18))
sketch13.addConstraint(Sketcher.Constraint("Horizontal", 19))
sketch13.addConstraint(Sketcher.Constraint("Vertical", 20))
sketch13.addConstraint(Sketcher.Constraint("Horizontal", 21))
sketch13.addConstraint(Sketcher.Constraint("Vertical", 22))
sketch13.addConstraint(Sketcher.Constraint("Horizontal", 23))
sketch13.addConstraint(Sketcher.Constraint("Horizontal", 5, 2, 8, 2))
sketch13.addConstraint(Sketcher.Constraint("Horizontal", 15, 2, 18, 2))
sketch13.addConstraint(Sketcher.Constraint("Horizontal", 13, 2, 20, 2))
sketch13.addConstraint(Sketcher.Constraint("Horizontal", 11, 2, 22, 2))
sketch13.addConstraint(Sketcher.Constraint("Vertical", 10, 2, 13, 2))
sketch13.addConstraint(Sketcher.Constraint("Vertical", 8, 2, 15, 2))
sketch13.addConstraint(Sketcher.Constraint("Vertical", 6, 2, 17, 2))
sketch13.addConstraint(Sketcher.Constraint("Vertical", 4, 2, 19, 2))
sketch13.addConstraint(Sketcher.Constraint("Equal", 5, 9))
sketch13.addConstraint(Sketcher.Constraint("Equal", 7, 11))
sketch13.addConstraint(Sketcher.Constraint("Equal", 17, 21))
sketch13.addConstraint(Sketcher.Constraint("Equal", 3, 0))
sketch13.addConstraint(Sketcher.Constraint("Equal", 19, 4))
sketch13.addConstraint(Sketcher.Constraint("Equal", 23, 6))
sketch13.addConstraint(Sketcher.Constraint("Equal", 8, 12))
sketch13.addConstraint(Sketcher.Constraint("Equal", 10, 14))
sketch13.addConstraint(Sketcher.Constraint("Equal", 12, 16))
sketch13.addConstraint(Sketcher.Constraint("DistanceX", 1, 1, 1, 2, Q("31 mm")))
sketch13.addConstraint(Sketcher.Constraint("DistanceX", 5, 1, 5, 2, Q("13 mm")))
sketch13.addConstraint(Sketcher.Constraint("DistanceX", 7, 1, 7, 2, Q("1 mm")))
sketch13.addConstraint(Sketcher.Constraint("DistanceY", -1, 1, 0, 2, Q("97 mm")))
sketch13.addConstraint(Sketcher.Constraint("DistanceY", -1, 1, 4, 2, Q("68 mm")))
sketch13.addConstraint(Sketcher.Constraint("DistanceX", 3, 2, 4, 2, Q("2 mm")))
sketch13.addConstraint(Sketcher.Constraint("DistanceX", -1, 1, 0, 2, Q("12.154704 mm")))
pad8 = body.newObject("PartDesign::Pad", "Pad007")
pad8.Profile = sketch13
pad8.Length = 2
pad8.Reversed = True

# Sketch on XY plane
sketch14 = body.newObject("Sketcher::SketchObject", "Sketch013")
sketch14.AttachmentSupport = (doc.getObject("XY_Plane"), [""])
sketch14.MapMode = "FlatFace"
sketch14.addGeometry(Part.LineSegment(App.Vector(-41, 0, 0), App.Vector(-41, 2, 0)), False)
sketch14.addGeometry(Part.LineSegment(App.Vector(-41, 2, 0), App.Vector(41, 2, 0)), False)
sketch14.addGeometry(Part.LineSegment(App.Vector(41, 2, 0), App.Vector(41, 0, 0)), False)
sketch14.addGeometry(Part.LineSegment(App.Vector(41, 0, 0), App.Vector(-41, 0, 0)), False)
sketch14.addConstraint(Sketcher.Constraint("Coincident", 0, 2, 1, 1))
sketch14.addConstraint(Sketcher.Constraint("Coincident", 1, 2, 2, 1))
sketch14.addConstraint(Sketcher.Constraint("Coincident", 2, 2, 3, 1))
sketch14.addConstraint(Sketcher.Constraint("Coincident", 3, 2, 0, 1))
sketch14.addConstraint(Sketcher.Constraint("Vertical", 0))
sketch14.addConstraint(Sketcher.Constraint("Horizontal", 1))
sketch14.addConstraint(Sketcher.Constraint("Vertical", 2))
sketch14.addConstraint(Sketcher.Constraint("Horizontal", 3))
sketch14.addConstraint(Sketcher.Constraint("Symmetric", 2, 2, 3, 2, -1, 1))
sketch14.addConstraint(Sketcher.Constraint("DistanceX", 1, 1, 1, 2, Q("82 mm")))
sketch14.addConstraint(Sketcher.Constraint("DistanceY", 0, 1, 0, 2, Q("2 mm")))
pad9 = body.newObject("PartDesign::Pad", "Pad008")
pad9.Profile = sketch14
pad9.Length = 3
pad9.Reversed = True

# Sketch on YZ plane
sketch15 = body.newObject("Sketcher::SketchObject", "Sketch014")
sketch15.AttachmentSupport = (doc.getObject("YZ_Plane"), [""])
sketch15.MapMode = "FlatFace"
sketch15.AttachmentOffset = App.Placement(App.Vector(0, 0, 12.154704), App.Rotation())
sketch15.addGeometry(Part.LineSegment(App.Vector(112.8, -11, 0), App.Vector(116, 0, 0)), False)
sketch15.addGeometry(Part.LineSegment(App.Vector(116, 0, 0), App.Vector(114, 0, 0)), False)
sketch15.addGeometry(Part.LineSegment(App.Vector(114, 0, 0), App.Vector(110.8, -11, 0)), False)
sketch15.addGeometry(Part.LineSegment(App.Vector(110.8, -11, 0), App.Vector(112.8, -11, 0)), False)
sketch15.addConstraint(Sketcher.Constraint("Coincident", 0, 2, 1, 1))
sketch15.addConstraint(Sketcher.Constraint("Coincident", 1, 2, 2, 1))
sketch15.addConstraint(Sketcher.Constraint("Coincident", 2, 2, 3, 1))
sketch15.addConstraint(Sketcher.Constraint("Coincident", 3, 2, 0, 1))
sketch15.addConstraint(Sketcher.Constraint("Horizontal", 1))
sketch15.addConstraint(Sketcher.Constraint("Horizontal", 3))
sketch15.addConstraint(Sketcher.Constraint("PointOnObject", 0, 2, -1))
sketch15.addConstraint(Sketcher.Constraint("Parallel", 0, 2))
sketch15.addConstraint(Sketcher.Constraint("DistanceX", 1, 2, 1, 1, Q("2 mm")))
sketch15.addConstraint(Sketcher.Constraint("DistanceX", -1, 1, 0, 2, Q("116 mm")))
sketch15.addConstraint(Sketcher.Constraint("DistanceY", 2, 2, -1, 1, Q("11 mm")))
sketch15.addConstraint(Sketcher.Constraint("Distance", 0, Q("11.467597 mm")))
pad10 = body.newObject("PartDesign::Pad", "Pad009")
pad10.Profile = sketch15
pad10.Length = 28

# Sketch on YZ plane
sketch16 = body.newObject("Sketcher::SketchObject", "Sketch015")
sketch16.AttachmentSupport = (doc.getObject("YZ_Plane"), [""])
sketch16.MapMode = "FlatFace"
sketch16.AttachmentOffset = App.Placement(App.Vector(0, 0, -12.845296), App.Rotation())
sketch16.addGeometry(Part.LineSegment(App.Vector(116, 0, 0), App.Vector(112.8, -11, 0)), False)
sketch16.addGeometry(Part.LineSegment(App.Vector(112.8, -11, 0), App.Vector(110.8, -11, 0)), False)
sketch16.addGeometry(Part.LineSegment(App.Vector(110.8, -11, 0), App.Vector(114, 0, 0)), False)
sketch16.addGeometry(Part.LineSegment(App.Vector(114, 0, 0), App.Vector(116, 0, 0)), False)
sketch16.addConstraint(Sketcher.Constraint("Coincident", 0, 2, 1, 1))
sketch16.addConstraint(Sketcher.Constraint("Coincident", 1, 2, 2, 1))
sketch16.addConstraint(Sketcher.Constraint("Coincident", 2, 2, 3, 1))
sketch16.addConstraint(Sketcher.Constraint("Coincident", 3, 2, 0, 1))
sketch16.addConstraint(Sketcher.Constraint("Horizontal", 1))
sketch16.addConstraint(Sketcher.Constraint("Horizontal", 3))
sketch16.addConstraint(Sketcher.Constraint("PointOnObject", 2, 2, -1))
sketch16.addConstraint(Sketcher.Constraint("Parallel", 0, 2))
sketch16.addConstraint(Sketcher.Constraint("DistanceX", 1, 2, 1, 1, Q("2 mm")))
sketch16.addConstraint(Sketcher.Constraint("DistanceY", 0, 2, -1, 1, Q("11 mm")))
sketch16.addConstraint(Sketcher.Constraint("DistanceX", -1, 1, 2, 2, Q("114 mm")))
sketch16.addConstraint(Sketcher.Constraint("Distance", 0, Q("11.467597 mm")))
pad11 = body.newObject("PartDesign::Pad", "Pad010")
pad11.Profile = sketch16
pad11.Length = 28
pad11.Reversed = True

# Sketch on XY plane
sketch17 = body.newObject("Sketcher::SketchObject", "Sketch016")
sketch17.AttachmentSupport = (doc.getObject("XY_Plane"), [""])
sketch17.MapMode = "FlatFace"
sketch17.addGeometry(Part.LineSegment(App.Vector(-48, 7, 0), App.Vector(-48, 106, 0)), False)
sketch17.addGeometry(Part.LineSegment(App.Vector(-48, 106, 0), App.Vector(-46, 106, 0)), False)
sketch17.addGeometry(Part.LineSegment(App.Vector(-46, 106, 0), App.Vector(-46, 7, 0)), False)
sketch17.addGeometry(Part.LineSegment(App.Vector(-46, 7, 0), App.Vector(-48, 7, 0)), False)
sketch17.addGeometry(Part.LineSegment(App.Vector(46, 7, 0), App.Vector(46, 106, 0)), False)
sketch17.addGeometry(Part.LineSegment(App.Vector(46, 106, 0), App.Vector(48, 106, 0)), False)
sketch17.addGeometry(Part.LineSegment(App.Vector(48, 106, 0), App.Vector(48, 7, 0)), False)
sketch17.addGeometry(Part.LineSegment(App.Vector(48, 7, 0), App.Vector(46, 7, 0)), False)
sketch17.addConstraint(Sketcher.Constraint("Coincident", 0, 2, 1, 1))
sketch17.addConstraint(Sketcher.Constraint("Coincident", 1, 2, 2, 1))
sketch17.addConstraint(Sketcher.Constraint("Coincident", 2, 2, 3, 1))
sketch17.addConstraint(Sketcher.Constraint("Coincident", 3, 2, 0, 1))
sketch17.addConstraint(Sketcher.Constraint("Coincident", 4, 2, 5, 1))
sketch17.addConstraint(Sketcher.Constraint("Coincident", 5, 2, 6, 1))
sketch17.addConstraint(Sketcher.Constraint("Coincident", 6, 2, 7, 1))
sketch17.addConstraint(Sketcher.Constraint("Coincident", 7, 2, 4, 1))
sketch17.addConstraint(Sketcher.Constraint("Vertical", 0))
sketch17.addConstraint(Sketcher.Constraint("Horizontal", 1))
sketch17.addConstraint(Sketcher.Constraint("Vertical", 2))
sketch17.addConstraint(Sketcher.Constraint("Horizontal", 3))
sketch17.addConstraint(Sketcher.Constraint("Vertical", 4))
sketch17.addConstraint(Sketcher.Constraint("Horizontal", 5))
sketch17.addConstraint(Sketcher.Constraint("Vertical", 6))
sketch17.addConstraint(Sketcher.Constraint("Horizontal", 7))
sketch17.addConstraint(Sketcher.Constraint("Symmetric", 1, 2, 4, 2, -2))
sketch17.addConstraint(Sketcher.Constraint("Symmetric", 3, 2, 6, 2, -2))
sketch17.addConstraint(Sketcher.Constraint("DistanceX", 1, 1, 1, 2, Q("2 mm")))
sketch17.addConstraint(Sketcher.Constraint("DistanceY", 0, 1, 0, 2, Q("99 mm")))
sketch17.addConstraint(Sketcher.Constraint("DistanceX", 0, 2, -1, 1, Q("48 mm")))
sketch17.addConstraint(Sketcher.Constraint("DistanceY", -1, 1, 0, 2, Q("106 mm")))
pad12 = body.newObject("PartDesign::Pad", "Pad011")
pad12.Profile = sketch17
pad12.Length = 4
pad12.Reversed = True

doc.recompute()
